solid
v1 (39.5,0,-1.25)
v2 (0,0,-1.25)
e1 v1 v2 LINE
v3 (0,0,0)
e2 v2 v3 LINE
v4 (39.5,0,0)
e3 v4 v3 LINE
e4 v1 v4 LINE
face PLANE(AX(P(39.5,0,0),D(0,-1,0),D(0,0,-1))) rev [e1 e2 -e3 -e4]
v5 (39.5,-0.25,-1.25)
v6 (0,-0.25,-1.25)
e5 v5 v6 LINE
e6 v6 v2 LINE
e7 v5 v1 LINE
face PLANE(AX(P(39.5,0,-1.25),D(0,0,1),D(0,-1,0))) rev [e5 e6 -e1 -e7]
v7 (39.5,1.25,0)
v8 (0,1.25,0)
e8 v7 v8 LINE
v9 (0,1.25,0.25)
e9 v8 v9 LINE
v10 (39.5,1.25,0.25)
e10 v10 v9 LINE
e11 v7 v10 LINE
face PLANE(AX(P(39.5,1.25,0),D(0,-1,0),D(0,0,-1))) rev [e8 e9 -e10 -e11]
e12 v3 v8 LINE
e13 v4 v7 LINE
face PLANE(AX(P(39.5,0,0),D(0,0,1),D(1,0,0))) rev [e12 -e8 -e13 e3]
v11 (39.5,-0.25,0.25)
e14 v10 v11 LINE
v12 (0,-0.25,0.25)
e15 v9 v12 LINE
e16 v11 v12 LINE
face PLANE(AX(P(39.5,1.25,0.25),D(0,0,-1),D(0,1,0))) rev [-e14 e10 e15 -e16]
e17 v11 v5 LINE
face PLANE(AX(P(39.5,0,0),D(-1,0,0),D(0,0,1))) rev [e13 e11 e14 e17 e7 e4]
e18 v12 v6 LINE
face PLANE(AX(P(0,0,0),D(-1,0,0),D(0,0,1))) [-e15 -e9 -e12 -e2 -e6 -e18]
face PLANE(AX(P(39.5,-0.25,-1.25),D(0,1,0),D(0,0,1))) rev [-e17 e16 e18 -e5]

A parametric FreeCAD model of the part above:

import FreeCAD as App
import Part
import Sketcher


def add_polygon(sketch, points):
    """Adds a closed chain of lines whose ends are joined by coincident constraints."""
    first, n = sketch.GeometryCount, len(points)
    for a, b in zip(points, points[1:] + points[:1]):
        sketch.addGeometry(Part.LineSegment(App.Vector(*a, 0), App.Vector(*b, 0)), False)
    for i in range(n):
        sketch.addConstraint(Sketcher.Constraint("Coincident", first + i, 2, first + (i + 1) % n, 1))

doc = App.newDocument("Part")
body = doc.addObject("PartDesign::Body", "Body")

sketch1 = body.newObject("Sketcher::SketchObject", "Sketch")
sketch1.AttachmentSupport = (doc.getObject("YZ_Plane"), [""])
sketch1.MapMode = "FlatFace"
add_polygon(sketch1, [(0, 0), (1.25, 0), (1.25, 0.25), (-0.25, 0.25), (-0.25, -1.25), (0, -1.25)])
sketch1.addConstraint(Sketcher.Constraint("Horizontal", 0))
sketch1.addConstraint(Sketcher.Constraint("Vertical", 1))
sketch1.addConstraint(Sketcher.Constraint("Horizontal", 2))
sketch1.addConstraint(Sketcher.Constraint("Vertical", 3))
sketch1.addConstraint(Sketcher.Constraint("Horizontal", 4))
sketch1.addConstraint(Sketcher.Constraint("Vertical", 5))
sketch1.addConstraint(Sketcher.Constraint("Coincident", 5, 2, -1, 1))
sketch1.addConstraint(Sketcher.Constraint("Equal", 4, 1))
sketch1.addConstraint(Sketcher.Constraint("Equal", 2, 3))
sketch1.addConstraint(Sketcher.Constraint("DistanceX", 2, 2, 2, 1, 1.5))
sketch1.addConstraint(Sketcher.Constraint("DistanceX", 0, 1, 0, 2, 1.25))
pad1 = body.newObject("PartDesign::Pad", "Pad")
pad1.Profile = sketch1
pad1.Length = 39.5

doc.recompute()
